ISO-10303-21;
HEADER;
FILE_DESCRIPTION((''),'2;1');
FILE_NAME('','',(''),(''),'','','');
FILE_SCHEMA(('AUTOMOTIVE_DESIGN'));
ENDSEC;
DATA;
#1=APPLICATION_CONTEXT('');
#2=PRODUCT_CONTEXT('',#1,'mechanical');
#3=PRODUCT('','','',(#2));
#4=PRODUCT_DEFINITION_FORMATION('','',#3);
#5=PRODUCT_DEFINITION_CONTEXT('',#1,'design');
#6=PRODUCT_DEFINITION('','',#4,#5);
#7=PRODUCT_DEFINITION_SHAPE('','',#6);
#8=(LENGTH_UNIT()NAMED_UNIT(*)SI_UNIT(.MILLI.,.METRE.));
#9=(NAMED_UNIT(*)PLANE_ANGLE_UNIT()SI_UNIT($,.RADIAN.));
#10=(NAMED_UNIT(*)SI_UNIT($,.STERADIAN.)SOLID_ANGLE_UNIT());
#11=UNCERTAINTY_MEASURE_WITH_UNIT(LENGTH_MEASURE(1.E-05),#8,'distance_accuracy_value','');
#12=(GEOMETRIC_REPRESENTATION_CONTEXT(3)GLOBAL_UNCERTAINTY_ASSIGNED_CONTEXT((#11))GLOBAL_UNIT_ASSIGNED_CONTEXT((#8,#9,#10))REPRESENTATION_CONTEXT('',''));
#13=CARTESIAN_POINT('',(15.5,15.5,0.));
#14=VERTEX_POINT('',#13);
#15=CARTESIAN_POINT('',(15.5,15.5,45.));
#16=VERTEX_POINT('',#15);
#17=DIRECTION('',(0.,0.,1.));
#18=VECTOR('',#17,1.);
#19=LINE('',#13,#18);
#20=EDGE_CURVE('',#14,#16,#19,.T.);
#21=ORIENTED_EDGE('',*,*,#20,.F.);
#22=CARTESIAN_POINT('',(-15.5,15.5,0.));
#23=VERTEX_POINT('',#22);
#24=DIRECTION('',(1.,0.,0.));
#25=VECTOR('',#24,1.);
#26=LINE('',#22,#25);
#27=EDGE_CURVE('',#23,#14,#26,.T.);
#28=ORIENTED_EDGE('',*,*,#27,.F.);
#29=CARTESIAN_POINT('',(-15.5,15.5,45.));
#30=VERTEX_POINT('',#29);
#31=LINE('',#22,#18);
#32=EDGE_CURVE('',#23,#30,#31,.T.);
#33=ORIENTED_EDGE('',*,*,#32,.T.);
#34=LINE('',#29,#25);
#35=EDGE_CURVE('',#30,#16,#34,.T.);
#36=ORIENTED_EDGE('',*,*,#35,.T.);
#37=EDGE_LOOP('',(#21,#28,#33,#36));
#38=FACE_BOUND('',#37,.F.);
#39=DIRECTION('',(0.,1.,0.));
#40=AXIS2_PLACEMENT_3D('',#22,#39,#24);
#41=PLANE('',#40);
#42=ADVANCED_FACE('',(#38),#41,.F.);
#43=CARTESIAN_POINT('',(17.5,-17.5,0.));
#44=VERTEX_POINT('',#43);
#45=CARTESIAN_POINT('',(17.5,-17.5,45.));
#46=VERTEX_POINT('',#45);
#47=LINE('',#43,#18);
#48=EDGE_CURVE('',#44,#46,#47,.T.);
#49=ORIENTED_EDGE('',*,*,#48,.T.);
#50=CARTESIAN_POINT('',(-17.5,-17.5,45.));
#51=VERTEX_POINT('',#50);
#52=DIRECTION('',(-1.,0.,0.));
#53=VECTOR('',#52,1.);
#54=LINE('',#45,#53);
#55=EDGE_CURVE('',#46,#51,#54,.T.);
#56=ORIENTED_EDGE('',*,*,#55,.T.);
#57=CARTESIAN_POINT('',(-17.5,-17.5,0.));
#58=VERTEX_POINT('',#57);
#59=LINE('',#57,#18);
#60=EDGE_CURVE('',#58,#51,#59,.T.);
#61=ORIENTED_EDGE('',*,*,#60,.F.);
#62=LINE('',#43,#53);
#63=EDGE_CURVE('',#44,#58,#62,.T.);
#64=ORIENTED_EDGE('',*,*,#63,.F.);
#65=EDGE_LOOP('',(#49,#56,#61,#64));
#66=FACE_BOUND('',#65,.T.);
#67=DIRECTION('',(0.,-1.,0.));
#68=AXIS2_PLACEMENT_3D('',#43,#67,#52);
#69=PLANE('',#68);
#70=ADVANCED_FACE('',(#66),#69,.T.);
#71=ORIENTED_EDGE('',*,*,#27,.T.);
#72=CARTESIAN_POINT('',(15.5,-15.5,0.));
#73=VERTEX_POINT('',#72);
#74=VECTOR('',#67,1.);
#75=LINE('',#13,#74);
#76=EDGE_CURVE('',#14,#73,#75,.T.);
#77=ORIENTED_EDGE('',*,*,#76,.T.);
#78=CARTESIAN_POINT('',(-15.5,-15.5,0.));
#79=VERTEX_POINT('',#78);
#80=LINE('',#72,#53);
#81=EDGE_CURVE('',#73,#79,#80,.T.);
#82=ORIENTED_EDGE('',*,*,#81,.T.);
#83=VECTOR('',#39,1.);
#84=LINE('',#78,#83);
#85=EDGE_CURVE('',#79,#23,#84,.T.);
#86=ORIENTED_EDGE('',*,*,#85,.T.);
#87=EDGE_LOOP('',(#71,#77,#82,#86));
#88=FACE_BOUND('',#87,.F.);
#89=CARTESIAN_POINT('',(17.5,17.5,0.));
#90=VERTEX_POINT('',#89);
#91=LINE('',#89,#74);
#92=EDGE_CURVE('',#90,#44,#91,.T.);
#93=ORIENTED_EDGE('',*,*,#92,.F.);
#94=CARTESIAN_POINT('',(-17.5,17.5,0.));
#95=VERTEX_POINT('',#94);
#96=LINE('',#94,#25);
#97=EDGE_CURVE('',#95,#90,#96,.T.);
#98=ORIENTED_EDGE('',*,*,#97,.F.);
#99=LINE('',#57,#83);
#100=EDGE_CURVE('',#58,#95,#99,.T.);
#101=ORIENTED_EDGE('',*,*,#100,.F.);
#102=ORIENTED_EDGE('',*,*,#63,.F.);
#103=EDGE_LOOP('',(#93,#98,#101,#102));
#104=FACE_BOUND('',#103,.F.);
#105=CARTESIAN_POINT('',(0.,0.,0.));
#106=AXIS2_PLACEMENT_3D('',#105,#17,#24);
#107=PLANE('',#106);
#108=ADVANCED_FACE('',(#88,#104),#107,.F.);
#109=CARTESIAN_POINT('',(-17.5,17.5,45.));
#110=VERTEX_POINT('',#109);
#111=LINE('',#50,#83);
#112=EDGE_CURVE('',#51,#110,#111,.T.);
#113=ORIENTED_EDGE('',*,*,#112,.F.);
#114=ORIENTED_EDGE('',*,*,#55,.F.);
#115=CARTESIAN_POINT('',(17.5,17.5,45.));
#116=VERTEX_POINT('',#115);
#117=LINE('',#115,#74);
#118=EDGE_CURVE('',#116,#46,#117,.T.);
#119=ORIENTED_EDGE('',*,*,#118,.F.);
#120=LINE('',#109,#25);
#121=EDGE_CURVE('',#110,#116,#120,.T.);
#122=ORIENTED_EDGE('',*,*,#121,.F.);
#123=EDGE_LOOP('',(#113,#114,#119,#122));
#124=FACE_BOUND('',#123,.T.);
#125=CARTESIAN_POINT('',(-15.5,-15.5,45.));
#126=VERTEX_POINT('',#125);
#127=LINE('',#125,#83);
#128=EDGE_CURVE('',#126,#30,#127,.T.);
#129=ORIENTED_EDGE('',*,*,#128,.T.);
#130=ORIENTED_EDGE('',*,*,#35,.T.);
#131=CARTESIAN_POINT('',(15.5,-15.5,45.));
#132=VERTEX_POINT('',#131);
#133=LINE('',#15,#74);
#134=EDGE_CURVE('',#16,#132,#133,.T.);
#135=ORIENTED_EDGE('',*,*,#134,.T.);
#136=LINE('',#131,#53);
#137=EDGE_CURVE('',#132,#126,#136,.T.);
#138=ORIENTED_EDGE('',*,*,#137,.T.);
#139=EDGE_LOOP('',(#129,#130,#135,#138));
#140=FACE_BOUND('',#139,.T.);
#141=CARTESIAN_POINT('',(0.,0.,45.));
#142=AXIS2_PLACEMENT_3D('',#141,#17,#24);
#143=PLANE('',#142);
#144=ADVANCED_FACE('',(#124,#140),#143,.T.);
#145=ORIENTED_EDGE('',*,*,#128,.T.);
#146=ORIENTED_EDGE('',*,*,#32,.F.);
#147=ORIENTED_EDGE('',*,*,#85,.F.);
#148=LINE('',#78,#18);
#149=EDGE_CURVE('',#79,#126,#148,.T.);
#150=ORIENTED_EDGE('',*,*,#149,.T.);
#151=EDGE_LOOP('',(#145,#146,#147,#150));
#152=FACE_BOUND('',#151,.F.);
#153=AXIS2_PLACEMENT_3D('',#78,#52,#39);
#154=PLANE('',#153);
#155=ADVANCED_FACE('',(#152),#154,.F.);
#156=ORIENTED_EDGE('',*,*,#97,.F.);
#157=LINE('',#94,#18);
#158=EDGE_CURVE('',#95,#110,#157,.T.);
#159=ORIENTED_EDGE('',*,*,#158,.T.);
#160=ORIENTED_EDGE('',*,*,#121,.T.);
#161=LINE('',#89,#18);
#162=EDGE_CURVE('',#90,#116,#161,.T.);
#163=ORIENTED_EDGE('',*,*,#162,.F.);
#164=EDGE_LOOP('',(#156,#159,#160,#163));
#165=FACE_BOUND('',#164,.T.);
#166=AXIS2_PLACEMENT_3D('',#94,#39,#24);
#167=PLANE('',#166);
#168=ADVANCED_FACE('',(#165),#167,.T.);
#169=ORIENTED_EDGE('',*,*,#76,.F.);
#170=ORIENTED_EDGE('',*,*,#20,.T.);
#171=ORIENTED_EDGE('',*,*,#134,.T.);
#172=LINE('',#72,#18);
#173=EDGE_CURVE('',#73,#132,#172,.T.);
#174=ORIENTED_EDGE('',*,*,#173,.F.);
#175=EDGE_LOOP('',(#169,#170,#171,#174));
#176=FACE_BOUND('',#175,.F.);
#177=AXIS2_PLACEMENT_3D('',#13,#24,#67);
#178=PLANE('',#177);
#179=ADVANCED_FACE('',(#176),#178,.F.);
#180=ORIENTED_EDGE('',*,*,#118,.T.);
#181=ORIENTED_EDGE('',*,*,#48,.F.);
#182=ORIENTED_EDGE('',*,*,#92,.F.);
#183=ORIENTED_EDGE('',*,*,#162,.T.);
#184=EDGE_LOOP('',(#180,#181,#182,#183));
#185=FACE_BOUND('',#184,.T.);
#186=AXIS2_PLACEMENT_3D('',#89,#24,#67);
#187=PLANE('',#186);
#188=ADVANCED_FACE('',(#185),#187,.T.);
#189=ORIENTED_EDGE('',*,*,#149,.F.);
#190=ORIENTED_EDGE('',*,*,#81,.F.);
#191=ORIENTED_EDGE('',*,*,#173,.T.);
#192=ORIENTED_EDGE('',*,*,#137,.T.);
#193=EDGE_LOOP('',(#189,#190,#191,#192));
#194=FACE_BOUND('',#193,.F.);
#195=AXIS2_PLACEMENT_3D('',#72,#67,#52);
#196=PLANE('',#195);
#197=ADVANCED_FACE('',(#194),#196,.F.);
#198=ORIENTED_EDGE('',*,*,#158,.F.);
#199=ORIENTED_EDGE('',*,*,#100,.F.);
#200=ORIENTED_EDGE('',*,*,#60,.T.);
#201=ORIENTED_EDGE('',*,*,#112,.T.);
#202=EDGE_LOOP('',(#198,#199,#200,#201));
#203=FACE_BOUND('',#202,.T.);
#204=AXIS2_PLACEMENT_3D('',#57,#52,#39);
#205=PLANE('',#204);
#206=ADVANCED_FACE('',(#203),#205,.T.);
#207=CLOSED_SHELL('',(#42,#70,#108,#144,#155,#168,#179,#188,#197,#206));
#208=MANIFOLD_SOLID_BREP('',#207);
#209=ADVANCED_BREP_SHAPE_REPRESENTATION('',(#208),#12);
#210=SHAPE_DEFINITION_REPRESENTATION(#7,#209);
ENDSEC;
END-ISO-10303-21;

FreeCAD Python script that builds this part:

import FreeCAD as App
import Part
import Sketcher
from FreeCAD import Vector
Q = App.Units.Quantity

doc = App.newDocument("Part")
body = doc.addObject("PartDesign::Body", "Body")

# Sketch on XY plane
sketch1 = body.newObject("Sketcher::SketchObject", "Sketch")
sketch1.AttachmentSupport = (doc.getObject("XY_Plane"), [""])
sketch1.MapMode = "FlatFace"
sketch1.addGeometry(Part.LineSegment(Vector(18, 18, 0), Vector(-18, 18, 0)), False)
sketch1.addGeometry(Part.LineSegment(Vector(-18, 18, 0), Vector(-18, -18, 0)), False)
sketch1.addGeometry(Part.LineSegment(Vector(-18, -18, 0), Vector(18, -18, 0)), False)
sketch1.addGeometry(Part.LineSegment(Vector(18, -18, 0), Vector(18, 18, 0)), False)
sketch1.addGeometry(Part.LineSegment(Vector(-16, -16, 0), Vector(-16, 16, 0)), False)
sketch1.addGeometry(Part.LineSegment(Vector(-16, 16, 0), Vector(16, 16, 0)), False)
sketch1.addGeometry(Part.LineSegment(Vector(16, 16, 0), Vector(16, -16, 0)), False)
sketch1.addGeometry(Part.LineSegment(Vector(16, -16, 0), Vector(-16, -16, 0)), False)
sketch1.addConstraint(Sketcher.Constraint("Coincident", 0, 2, 1, 1))
sketch1.addConstraint(Sketcher.Constraint("Coincident", 1, 2, 2, 1))
sketch1.addConstraint(Sketcher.Constraint("Coincident", 2, 2, 3, 1))
sketch1.addConstraint(Sketcher.Constraint("Coincident", 3, 2, 0, 1))
sketch1.addConstraint(Sketcher.Constraint("Coincident", 4, 2, 5, 1))
sketch1.addConstraint(Sketcher.Constraint("Coincident", 5, 2, 6, 1))
sketch1.addConstraint(Sketcher.Constraint("Coincident", 6, 2, 7, 1))
sketch1.addConstraint(Sketcher.Constraint("Coincident", 7, 2, 4, 1))
sketch1.addConstraint(Sketcher.Constraint("Horizontal", 0))
sketch1.addConstraint(Sketcher.Constraint("Vertical", 1))
sketch1.addConstraint(Sketcher.Constraint("Horizontal", 2))
sketch1.addConstraint(Sketcher.Constraint("Vertical", 3))
sketch1.addConstraint(Sketcher.Constraint("Vertical", 4))
sketch1.addConstraint(Sketcher.Constraint("Horizontal", 5))
sketch1.addConstraint(Sketcher.Constraint("Vertical", 6))
sketch1.addConstraint(Sketcher.Constraint("Horizontal", 7))
sketch1.addConstraint(Sketcher.Constraint("Symmetric", 0, 2, 2, 2, -1, 1))
sketch1.addConstraint(Sketcher.Constraint("Symmetric", 4, 2, 6, 2, -1, 1))
sketch1.addConstraint(Sketcher.Constraint("Equal", 2, 1))
sketch1.addConstraint(Sketcher.Constraint("Equal", 7, 4))
sketch1.addConstraint(Sketcher.Constraint("DistanceX", 0, 2, 0, 1, Q("35 mm")))
sketch1.addConstraint(Sketcher.Constraint("DistanceX", 0, 2, 4, 2, Q("2 mm")))
pad1 = body.newObject("PartDesign::Pad", "Pad")
pad1.Profile = sketch1
pad1.Length = 45

doc.recompute()
